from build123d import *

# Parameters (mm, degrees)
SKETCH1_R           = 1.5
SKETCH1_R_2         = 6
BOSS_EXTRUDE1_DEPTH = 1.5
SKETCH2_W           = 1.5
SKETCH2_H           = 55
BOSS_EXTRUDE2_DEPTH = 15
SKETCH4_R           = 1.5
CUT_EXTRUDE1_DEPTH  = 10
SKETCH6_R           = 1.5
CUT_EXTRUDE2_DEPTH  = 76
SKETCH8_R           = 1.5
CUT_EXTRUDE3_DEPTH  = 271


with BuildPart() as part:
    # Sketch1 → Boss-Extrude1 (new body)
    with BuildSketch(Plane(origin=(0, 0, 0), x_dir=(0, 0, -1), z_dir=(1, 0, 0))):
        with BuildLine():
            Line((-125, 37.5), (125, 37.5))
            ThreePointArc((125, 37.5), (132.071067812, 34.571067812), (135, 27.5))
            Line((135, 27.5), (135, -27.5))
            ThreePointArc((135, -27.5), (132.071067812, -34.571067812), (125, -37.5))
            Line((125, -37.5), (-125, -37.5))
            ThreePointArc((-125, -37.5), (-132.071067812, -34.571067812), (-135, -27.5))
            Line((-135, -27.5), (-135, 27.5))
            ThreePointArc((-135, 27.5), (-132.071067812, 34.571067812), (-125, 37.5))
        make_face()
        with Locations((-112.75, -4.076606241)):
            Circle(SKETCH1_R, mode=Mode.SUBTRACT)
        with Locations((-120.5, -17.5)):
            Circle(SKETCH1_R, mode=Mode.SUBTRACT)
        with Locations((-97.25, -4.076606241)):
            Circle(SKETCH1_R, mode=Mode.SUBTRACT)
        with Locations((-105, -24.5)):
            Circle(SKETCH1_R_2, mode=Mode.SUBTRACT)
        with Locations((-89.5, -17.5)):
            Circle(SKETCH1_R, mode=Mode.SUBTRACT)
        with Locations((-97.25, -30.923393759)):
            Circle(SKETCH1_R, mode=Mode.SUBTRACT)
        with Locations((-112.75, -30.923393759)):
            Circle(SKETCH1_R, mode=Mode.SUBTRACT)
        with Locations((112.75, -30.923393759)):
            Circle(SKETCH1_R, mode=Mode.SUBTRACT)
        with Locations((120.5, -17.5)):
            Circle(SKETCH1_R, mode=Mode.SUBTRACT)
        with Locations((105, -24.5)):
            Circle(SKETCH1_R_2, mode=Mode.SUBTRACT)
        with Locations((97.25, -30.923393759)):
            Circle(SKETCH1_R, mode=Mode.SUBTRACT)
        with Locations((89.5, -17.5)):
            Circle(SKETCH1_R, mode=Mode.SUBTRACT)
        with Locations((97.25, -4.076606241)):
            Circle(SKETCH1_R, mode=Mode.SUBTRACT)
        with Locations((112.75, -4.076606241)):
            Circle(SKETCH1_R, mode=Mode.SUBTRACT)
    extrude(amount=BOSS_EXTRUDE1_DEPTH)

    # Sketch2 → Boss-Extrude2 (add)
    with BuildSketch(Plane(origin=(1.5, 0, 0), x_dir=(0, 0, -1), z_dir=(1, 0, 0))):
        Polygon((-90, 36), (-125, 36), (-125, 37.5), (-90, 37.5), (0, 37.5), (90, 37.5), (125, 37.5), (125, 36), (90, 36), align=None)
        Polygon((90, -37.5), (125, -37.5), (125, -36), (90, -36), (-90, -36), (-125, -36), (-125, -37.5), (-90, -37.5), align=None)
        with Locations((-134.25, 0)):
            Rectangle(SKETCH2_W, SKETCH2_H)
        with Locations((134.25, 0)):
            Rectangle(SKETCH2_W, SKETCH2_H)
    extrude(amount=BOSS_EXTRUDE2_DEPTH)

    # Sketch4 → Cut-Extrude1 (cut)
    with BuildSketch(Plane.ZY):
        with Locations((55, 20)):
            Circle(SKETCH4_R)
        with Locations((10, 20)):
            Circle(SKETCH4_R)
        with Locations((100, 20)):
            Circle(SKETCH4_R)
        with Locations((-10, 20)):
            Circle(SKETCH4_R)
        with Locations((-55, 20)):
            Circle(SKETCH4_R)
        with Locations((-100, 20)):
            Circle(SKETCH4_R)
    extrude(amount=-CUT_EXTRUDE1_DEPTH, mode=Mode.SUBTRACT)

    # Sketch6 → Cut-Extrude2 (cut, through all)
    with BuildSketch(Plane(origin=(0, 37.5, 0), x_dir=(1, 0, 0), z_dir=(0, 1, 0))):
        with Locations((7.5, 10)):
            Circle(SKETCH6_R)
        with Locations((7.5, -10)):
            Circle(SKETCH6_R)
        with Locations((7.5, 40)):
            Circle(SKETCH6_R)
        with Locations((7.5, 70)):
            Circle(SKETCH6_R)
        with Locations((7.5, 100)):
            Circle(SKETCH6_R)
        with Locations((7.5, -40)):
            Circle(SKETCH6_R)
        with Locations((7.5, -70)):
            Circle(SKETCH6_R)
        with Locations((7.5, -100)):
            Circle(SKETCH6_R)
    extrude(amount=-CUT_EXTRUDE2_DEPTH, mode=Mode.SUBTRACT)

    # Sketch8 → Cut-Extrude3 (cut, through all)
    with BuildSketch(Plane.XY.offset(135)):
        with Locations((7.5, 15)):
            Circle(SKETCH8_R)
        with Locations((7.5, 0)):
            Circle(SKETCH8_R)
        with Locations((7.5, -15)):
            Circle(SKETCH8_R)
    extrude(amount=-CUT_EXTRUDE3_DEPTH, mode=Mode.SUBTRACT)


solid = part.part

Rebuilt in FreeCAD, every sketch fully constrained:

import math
import FreeCAD as App
import Part
import Sketcher
from FreeCAD import Vector
Q = App.Units.Quantity


def add_polygon(sketch, points):
    """Adds a closed chain of lines whose ends are joined by coincident constraints."""
    first, n = sketch.GeometryCount, len(points)
    for a, b in zip(points, points[1:] + points[:1]):
        sketch.addGeometry(Part.LineSegment(App.Vector(*a, 0), App.Vector(*b, 0)), False)
    for i in range(n):
        sketch.addConstraint(Sketcher.Constraint("Coincident", first + i, 2, first + (i + 1) % n, 1))

doc = App.newDocument("Part")
params = doc.addObject("Spreadsheet::Sheet", "Params")
for row, (alias, value) in enumerate([
    ("sketch1_diameter", "3 mm"),
    ("sketch1_diameter2", "12 mm"),
    ("sketch1_radius", "10 mm"),
    ("sketch1_width", "55 mm"),
    ("sketch1_height", "250 mm"),
    ("pad1_length", "1.5 mm"),
    ("sketch2_width", "55 mm"),
    ("sketch2_height", "250 mm"),
    ("sketch2_width2", "1.5 mm"),
    ("pad2_length", "15 mm"),
    ("sketch3_diameter", "3 mm"),
    ("pocket1_length", "10 mm"),
    ("sketch4_diameter", "3 mm"),
    ("sketch5_diameter", "3 mm"),
], start=1):
    params.set(f"A{row}", alias)
    params.set(f"B{row}", "=" + value)
    params.setAlias(f"B{row}", alias)

body = doc.addObject("PartDesign::Body", "Body")

sketch1 = body.newObject("Sketcher::SketchObject", "Sketch")
sketch1.AttachmentSupport = (doc.getObject("YZ_Plane"), [""])
sketch1.MapMode = "FlatFace"
sketch1.addGeometry([
    Part.LineSegment(Vector(37.5, -125, 0), Vector(37.5, 125, 0)),
    Part.ArcOfCircle(Part.Circle(Vector(27.5, 125, 0), Vector(0, 0, 1), 10), math.radians(0), math.radians(90)),
    Part.LineSegment(Vector(27.5, 135, 0), Vector(-27.5, 135, 0)),
    Part.ArcOfCircle(Part.Circle(Vector(-27.5, 125, 0), Vector(0, 0, 1), 10), math.radians(90), math.radians(180)),
    Part.LineSegment(Vector(-37.5, 125, 0), Vector(-37.5, -125, 0)),
    Part.ArcOfCircle(Part.Circle(Vector(-27.5, -125, 0), Vector(0, 0, 1), 10), math.radians(180), math.radians(270)),
    Part.LineSegment(Vector(-27.5, -135, 0), Vector(27.5, -135, 0)),
    Part.ArcOfCircle(Part.Circle(Vector(27.5, -125, 0), Vector(0, 0, 1), 10), math.radians(-90), math.radians(0)),
    Part.Circle(Vector(-30.9, -112.8, 0), Vector(0, 0, 1), 1.5),
    Part.Circle(Vector(-30.9, -97.2, 0), Vector(0, 0, 1), 1.5),
    Part.Circle(Vector(-24.5, -105, 0), Vector(0, 0, 1), 6),
    Part.Circle(Vector(-30.9, 97.2, 0), Vector(0, 0, 1), 1.5),
    Part.Circle(Vector(-30.9, 112.8, 0), Vector(0, 0, 1), 1.5),
    Part.Circle(Vector(-24.5, 105, 0), Vector(0, 0, 1), 6),
    Part.Circle(Vector(-17.5, -120.5, 0), Vector(0, 0, 1), 1.5),
    Part.Circle(Vector(-17.5, -89.5, 0), Vector(0, 0, 1), 1.5),
    Part.Circle(Vector(-4.1, -112.8, 0), Vector(0, 0, 1), 1.5),
    Part.Circle(Vector(-4.1, -97.2, 0), Vector(0, 0, 1), 1.5),
    Part.Circle(Vector(-17.5, 89.5, 0), Vector(0, 0, 1), 1.5),
    Part.Circle(Vector(-17.5, 120.5, 0), Vector(0, 0, 1), 1.5),
    Part.Circle(Vector(-4.1, 97.2, 0), Vector(0, 0, 1), 1.5),
    Part.Circle(Vector(-4.1, 112.8, 0), Vector(0, 0, 1), 1.5),
], False)
sketch1.addConstraint([
    Sketcher.Constraint("Tangent", 0, 2, 1, 1),
    Sketcher.Constraint("Tangent", 1, 2, 2, 1),
    Sketcher.Constraint("Tangent", 2, 2, 3, 1),
    Sketcher.Constraint("Tangent", 3, 2, 4, 1),
    Sketcher.Constraint("Tangent", 4, 2, 5, 1),
    Sketcher.Constraint("Tangent", 5, 2, 6, 1),
    Sketcher.Constraint("Tangent", 6, 2, 7, 1),
    Sketcher.Constraint("Tangent", 7, 2, 0, 1),
    Sketcher.Constraint("Vertical", 0),
    Sketcher.Constraint("Horizontal", 2),
    Sketcher.Constraint("Vertical", 4),
    Sketcher.Constraint("Horizontal", 6),
    Sketcher.Constraint("Equal", 1, 3),
    Sketcher.Constraint("Equal", 3, 5),
    Sketcher.Constraint("Equal", 5, 7),
    Sketcher.Constraint("Equal", 8, 9),
    Sketcher.Constraint("Equal", 9, 11),
    Sketcher.Constraint("Equal", 11, 12),
    Sketcher.Constraint("Equal", 10, 13),
    Sketcher.Constraint("Equal", 12, 14),
    Sketcher.Constraint("Equal", 14, 15),
    Sketcher.Constraint("Equal", 15, 16),
    Sketcher.Constraint("Equal", 16, 17),
    Sketcher.Constraint("Equal", 17, 18),
    Sketcher.Constraint("Equal", 18, 19),
    Sketcher.Constraint("Equal", 19, 20),
    Sketcher.Constraint("Equal", 20, 21),
    Sketcher.Constraint("Symmetric", 1, 3, 5, 3, -1, 1),
    Sketcher.Constraint("Symmetric", 9, 3, 11, 3, -1),
    Sketcher.Constraint("Symmetric", 8, 3, 12, 3, -1),
    Sketcher.Constraint("Symmetric", 10, 3, 13, 3, -1),
    Sketcher.Constraint("Symmetric", 15, 3, 18, 3, -1),
    Sketcher.Constraint("Symmetric", 14, 3, 19, 3, -1),
    Sketcher.Constraint("Symmetric", 17, 3, 20, 3, -1),
    Sketcher.Constraint("Symmetric", 16, 3, 21, 3, -1),
    Sketcher.Constraint("Horizontal", 8, 3, 16, 3),
    Sketcher.Constraint("Horizontal", 9, 3, 17, 3),
    Sketcher.Constraint("Vertical", 8, 3, 9, 3),
    Sketcher.Constraint("Vertical", 14, 3, 15, 3),
    Sketcher.Constraint("Vertical", 16, 3, 17, 3),
    Sketcher.Constraint("Diameter", 8, Q("3 mm")),
    Sketcher.Constraint("Diameter", 10, Q("12 mm")),
    Sketcher.Constraint("Radius", 1, Q("10 mm")),
    Sketcher.Constraint("DistanceX", 2, 2, 2, 1, Q("55 mm")),
    Sketcher.Constraint("DistanceY", 0, 1, 0, 2, Q("250 mm")),
    Sketcher.Constraint("DistanceY", 10, 3, -1, 1, Q("105 mm")),
    Sketcher.Constraint("DistanceX", 5, 3, 10, 3, Q("3 mm")),
    Sketcher.Constraint("DistanceY", 8, 3, 11, 3, Q("210 mm")),
    Sketcher.Constraint("DistanceX", 5, 3, 14, 3, Q("10 mm")),
    Sketcher.Constraint("DistanceY", 14, 3, 15, 3, Q("31 mm")),
    Sketcher.Constraint("DistanceY", 14, 3, -1, 1, Q("120.5 mm")),
    Sketcher.Constraint("DistanceY", 8, 3, 9, 3, Q("15.5 mm")),
    Sketcher.Constraint("DistanceX", 8, 3, -1, 1, Q("30.923394 mm")),
    Sketcher.Constraint("DistanceX", 16, 3, -1, 1, Q("4.076606 mm")),
])
sketch1.setExpression("Constraints[40]", "Params.sketch1_diameter")
sketch1.setExpression("Constraints[41]", "Params.sketch1_diameter2")
sketch1.setExpression("Constraints[42]", "Params.sketch1_radius")
sketch1.setExpression("Constraints[43]", "Params.sketch1_width")
sketch1.setExpression("Constraints[44]", "Params.sketch1_height")
pad1 = body.newObject("PartDesign::Pad", "Pad")
pad1.Profile = sketch1
pad1.setExpression("Length", "Params.pad1_length")

sketch2 = body.newObject("Sketcher::SketchObject", "Sketch001")
sketch2.AttachmentSupport = (doc.getObject("YZ_Plane"), [""])
sketch2.MapMode = "FlatFace"
sketch2.AttachmentOffset = App.Placement(Vector(0, 0, 1.5), App.Rotation())
add_polygon(sketch2, [(36, 125), (36, -125), (37.5, -125), (37.5, 125)])
add_polygon(sketch2, [(-37.5, -125), (-36, -125), (-36, 125), (-37.5, 125)])
add_polygon(sketch2, [(27.5, 135), (-27.5, 135), (-27.5, 133.5), (27.5, 133.5)])
add_polygon(sketch2, [(27.5, -133.5), (-27.5, -133.5), (-27.5, -135), (27.5, -135)])
sketch2.addConstraint([
    Sketcher.Constraint("Vertical", 0),
    Sketcher.Constraint("Horizontal", 1),
    Sketcher.Constraint("Vertical", 2),
    Sketcher.Constraint("Horizontal", 3),
    Sketcher.Constraint("Horizontal", 4),
    Sketcher.Constraint("Vertical", 5),
    Sketcher.Constraint("Horizontal", 6),
    Sketcher.Constraint("Vertical", 7),
    Sketcher.Constraint("Horizontal", 8),
    Sketcher.Constraint("Vertical", 9),
    Sketcher.Constraint("Horizontal", 10),
    Sketcher.Constraint("Vertical", 11),
    Sketcher.Constraint("Horizontal", 12),
    Sketcher.Constraint("Vertical", 13),
    Sketcher.Constraint("Horizontal", 14),
    Sketcher.Constraint("Vertical", 15),
    Sketcher.Constraint("Symmetric", 3, 2, 4, 2, -1, 1),
    Sketcher.Constraint("Symmetric", 1, 2, 6, 2, -1, 1),
    Sketcher.Constraint("Symmetric", 10, 2, 12, 2, -1, 1),
    Sketcher.Constraint("Symmetric", 8, 2, 14, 2, -1, 1),
    Sketcher.Constraint("Horizontal", 1, 2, 4, 2),
    Sketcher.Constraint("Vertical", 9, 2, 12, 2),
    Sketcher.Constraint("Equal", 6, 9),
    Sketcher.Constraint("DistanceX", 8, 2, 8, 1, Q("55 mm")),
    Sketcher.Constraint("DistanceY", 0, 2, 0, 1, Q("250 mm")),
    Sketcher.Constraint("DistanceX", 1, 1, 1, 2, Q("1.5 mm")),
    Sketcher.Constraint("DistanceX", -1, 1, 0, 2, Q("36 mm")),
    Sketcher.Constraint("DistanceY", -1, 1, 8, 2, Q("135 mm")),
])
sketch2.setExpression("Constraints[39]", "Params.sketch2_width")
sketch2.setExpression("Constraints[40]", "Params.sketch2_height")
sketch2.setExpression("Constraints[41]", "Params.sketch2_width2")
pad2 = body.newObject("PartDesign::Pad", "Pad001")
pad2.Profile = sketch2
pad2.setExpression("Length", "Params.pad2_length")

sketch3 = body.newObject("Sketcher::SketchObject", "Sketch002")
sketch3.AttachmentSupport = (doc.getObject("YZ_Plane"), [""])
sketch3.MapMode = "FlatFace"
sketch3.addGeometry([
    Part.Circle(Vector(20, 55, 0), Vector(0, 0, 1), 1.5),
    Part.Circle(Vector(20, 10, 0), Vector(0, 0, 1), 1.5),
    Part.Circle(Vector(20, 100, 0), Vector(0, 0, 1), 1.5),
    Part.Circle(Vector(20, -10, 0), Vector(0, 0, 1), 1.5),
    Part.Circle(Vector(20, -55, 0), Vector(0, 0, 1), 1.5),
    Part.Circle(Vector(20, -100, 0), Vector(0, 0, 1), 1.5),
], False)
sketch3.addConstraint([
    Sketcher.Constraint("Equal", 0, 1),
    Sketcher.Constraint("Equal", 1, 2),
    Sketcher.Constraint("Equal", 2, 3),
    Sketcher.Constraint("Equal", 3, 4),
    Sketcher.Constraint("Equal", 4, 5),
    Sketcher.Constraint("Symmetric", 1, 3, 3, 3, -1),
    Sketcher.Constraint("Symmetric", 0, 3, 4, 3, -1),
    Sketcher.Constraint("Symmetric", 2, 3, 5, 3, -1),
    Sketcher.Constraint("Vertical", 0, 3, 1, 3),
    Sketcher.Constraint("Vertical", 1, 3, 2, 3),
    Sketcher.Constraint("Diameter", 0, Q("3 mm")),
    Sketcher.Constraint("DistanceX", -1, 1, 0, 3, Q("20 mm")),
    Sketcher.Constraint("DistanceY", -1, 1, 0, 3, Q("55 mm")),
    Sketcher.Constraint("DistanceY", -1, 1, 1, 3, Q("10 mm")),
    Sketcher.Constraint("DistanceY", -1, 1, 2, 3, Q("100 mm")),
])
sketch3.setExpression("Constraints[10]", "Params.sketch3_diameter")
pocket1 = body.newObject("PartDesign::Pocket", "Pocket")
pocket1.Profile = sketch3
pocket1.setExpression("Length", "Params.pocket1_length")
pocket1.Reversed = True

sketch4 = body.newObject("Sketcher::SketchObject", "Sketch003")
sketch4.AttachmentSupport = (doc.getObject("XZ_Plane"), [""])
sketch4.MapMode = "FlatFace"
sketch4.AttachmentOffset = App.Placement(Vector(0, 0, -37.5), App.Rotation())
sketch4.addGeometry([
    Part.Circle(Vector(7.5, -10, 0), Vector(0, 0, 1), 1.5),
    Part.Circle(Vector(7.5, 10, 0), Vector(0, 0, 1), 1.5),
    Part.Circle(Vector(7.5, -40, 0), Vector(0, 0, 1), 1.5),
    Part.Circle(Vector(7.5, -70, 0), Vector(0, 0, 1), 1.5),
    Part.Circle(Vector(7.5, -100, 0), Vector(0, 0, 1), 1.5),
    Part.Circle(Vector(7.5, 40, 0), Vector(0, 0, 1), 1.5),
    Part.Circle(Vector(7.5, 70, 0), Vector(0, 0, 1), 1.5),
    Part.Circle(Vector(7.5, 100, 0), Vector(0, 0, 1), 1.5),
], False)
sketch4.addConstraint([
    Sketcher.Constraint("Equal", 0, 1),
    Sketcher.Constraint("Equal", 1, 2),
    Sketcher.Constraint("Equal", 2, 3),
    Sketcher.Constraint("Equal", 3, 4),
    Sketcher.Constraint("Equal", 4, 5),
    Sketcher.Constraint("Equal", 5, 6),
    Sketcher.Constraint("Equal", 6, 7),
    Sketcher.Constraint("Symmetric", 0, 3, 1, 3, -1),
    Sketcher.Constraint("Symmetric", 2, 3, 5, 3, -1),
    Sketcher.Constraint("Symmetric", 3, 3, 6, 3, -1),
    Sketcher.Constraint("Symmetric", 4, 3, 7, 3, -1),
    Sketcher.Constraint("Vertical", 1, 3, 2, 3),
    Sketcher.Constraint("Vertical", 2, 3, 3, 3),
    Sketcher.Constraint("Vertical", 3, 3, 4, 3),
    Sketcher.Constraint("Diameter", 0, Q("3 mm")),
    Sketcher.Constraint("DistanceY", 0, 3, -1, 1, Q("10 mm")),
    Sketcher.Constraint("DistanceY", 2, 3, -1, 1, Q("40 mm")),
    Sketcher.Constraint("DistanceY", 3, 3, -1, 1, Q("70 mm")),
    Sketcher.Constraint("DistanceY", 4, 3, -1, 1, Q("100 mm")),
    Sketcher.Constraint("DistanceX", -1, 1, 0, 3, Q("7.5 mm")),
])
sketch4.setExpression("Constraints[14]", "Params.sketch4_diameter")
pocket2 = body.newObject("PartDesign::Pocket", "Pocket001")
pocket2.Profile = sketch4
pocket2.Type = "ThroughAll"
pocket2.Reversed = True

sketch5 = body.newObject("Sketcher::SketchObject", "Sketch004")
sketch5.AttachmentSupport = (doc.getObject("XY_Plane"), [""])
sketch5.MapMode = "FlatFace"
sketch5.AttachmentOffset = App.Placement(Vector(0, 0, 135), App.Rotation())
sketch5.addGeometry([
    Part.Circle(Vector(7.5, 15, 0), Vector(0, 0, 1), 1.5),
    Part.Circle(Vector(7.5, 0, 0), Vector(0, 0, 1), 1.5),
    Part.Circle(Vector(7.5, -15, 0), Vector(0, 0, 1), 1.5),
], False)
sketch5.addConstraint([
    Sketcher.Constraint("Equal", 0, 1),
    Sketcher.Constraint("Equal", 1, 2),
    Sketcher.Constraint("Symmetric", 0, 3, 2, 3, -1),
    Sketcher.Constraint("PointOnObject", 1, 3, -1),
    Sketcher.Constraint("Vertical", 0, 3, 1, 3),
    Sketcher.Constraint("Diameter", 0, Q("3 mm")),
    Sketcher.Constraint("DistanceY", -1, 1, 0, 3, Q("15 mm")),
    Sketcher.Constraint("DistanceX", -1, 1, 0, 3, Q("7.5 mm")),
])
sketch5.setExpression("Constraints[5]", "Params.sketch5_diameter")
pocket3 = body.newObject("PartDesign::Pocket", "Pocket002")
pocket3.Profile = sketch5
pocket3.Type = "ThroughAll"

doc.recompute()
